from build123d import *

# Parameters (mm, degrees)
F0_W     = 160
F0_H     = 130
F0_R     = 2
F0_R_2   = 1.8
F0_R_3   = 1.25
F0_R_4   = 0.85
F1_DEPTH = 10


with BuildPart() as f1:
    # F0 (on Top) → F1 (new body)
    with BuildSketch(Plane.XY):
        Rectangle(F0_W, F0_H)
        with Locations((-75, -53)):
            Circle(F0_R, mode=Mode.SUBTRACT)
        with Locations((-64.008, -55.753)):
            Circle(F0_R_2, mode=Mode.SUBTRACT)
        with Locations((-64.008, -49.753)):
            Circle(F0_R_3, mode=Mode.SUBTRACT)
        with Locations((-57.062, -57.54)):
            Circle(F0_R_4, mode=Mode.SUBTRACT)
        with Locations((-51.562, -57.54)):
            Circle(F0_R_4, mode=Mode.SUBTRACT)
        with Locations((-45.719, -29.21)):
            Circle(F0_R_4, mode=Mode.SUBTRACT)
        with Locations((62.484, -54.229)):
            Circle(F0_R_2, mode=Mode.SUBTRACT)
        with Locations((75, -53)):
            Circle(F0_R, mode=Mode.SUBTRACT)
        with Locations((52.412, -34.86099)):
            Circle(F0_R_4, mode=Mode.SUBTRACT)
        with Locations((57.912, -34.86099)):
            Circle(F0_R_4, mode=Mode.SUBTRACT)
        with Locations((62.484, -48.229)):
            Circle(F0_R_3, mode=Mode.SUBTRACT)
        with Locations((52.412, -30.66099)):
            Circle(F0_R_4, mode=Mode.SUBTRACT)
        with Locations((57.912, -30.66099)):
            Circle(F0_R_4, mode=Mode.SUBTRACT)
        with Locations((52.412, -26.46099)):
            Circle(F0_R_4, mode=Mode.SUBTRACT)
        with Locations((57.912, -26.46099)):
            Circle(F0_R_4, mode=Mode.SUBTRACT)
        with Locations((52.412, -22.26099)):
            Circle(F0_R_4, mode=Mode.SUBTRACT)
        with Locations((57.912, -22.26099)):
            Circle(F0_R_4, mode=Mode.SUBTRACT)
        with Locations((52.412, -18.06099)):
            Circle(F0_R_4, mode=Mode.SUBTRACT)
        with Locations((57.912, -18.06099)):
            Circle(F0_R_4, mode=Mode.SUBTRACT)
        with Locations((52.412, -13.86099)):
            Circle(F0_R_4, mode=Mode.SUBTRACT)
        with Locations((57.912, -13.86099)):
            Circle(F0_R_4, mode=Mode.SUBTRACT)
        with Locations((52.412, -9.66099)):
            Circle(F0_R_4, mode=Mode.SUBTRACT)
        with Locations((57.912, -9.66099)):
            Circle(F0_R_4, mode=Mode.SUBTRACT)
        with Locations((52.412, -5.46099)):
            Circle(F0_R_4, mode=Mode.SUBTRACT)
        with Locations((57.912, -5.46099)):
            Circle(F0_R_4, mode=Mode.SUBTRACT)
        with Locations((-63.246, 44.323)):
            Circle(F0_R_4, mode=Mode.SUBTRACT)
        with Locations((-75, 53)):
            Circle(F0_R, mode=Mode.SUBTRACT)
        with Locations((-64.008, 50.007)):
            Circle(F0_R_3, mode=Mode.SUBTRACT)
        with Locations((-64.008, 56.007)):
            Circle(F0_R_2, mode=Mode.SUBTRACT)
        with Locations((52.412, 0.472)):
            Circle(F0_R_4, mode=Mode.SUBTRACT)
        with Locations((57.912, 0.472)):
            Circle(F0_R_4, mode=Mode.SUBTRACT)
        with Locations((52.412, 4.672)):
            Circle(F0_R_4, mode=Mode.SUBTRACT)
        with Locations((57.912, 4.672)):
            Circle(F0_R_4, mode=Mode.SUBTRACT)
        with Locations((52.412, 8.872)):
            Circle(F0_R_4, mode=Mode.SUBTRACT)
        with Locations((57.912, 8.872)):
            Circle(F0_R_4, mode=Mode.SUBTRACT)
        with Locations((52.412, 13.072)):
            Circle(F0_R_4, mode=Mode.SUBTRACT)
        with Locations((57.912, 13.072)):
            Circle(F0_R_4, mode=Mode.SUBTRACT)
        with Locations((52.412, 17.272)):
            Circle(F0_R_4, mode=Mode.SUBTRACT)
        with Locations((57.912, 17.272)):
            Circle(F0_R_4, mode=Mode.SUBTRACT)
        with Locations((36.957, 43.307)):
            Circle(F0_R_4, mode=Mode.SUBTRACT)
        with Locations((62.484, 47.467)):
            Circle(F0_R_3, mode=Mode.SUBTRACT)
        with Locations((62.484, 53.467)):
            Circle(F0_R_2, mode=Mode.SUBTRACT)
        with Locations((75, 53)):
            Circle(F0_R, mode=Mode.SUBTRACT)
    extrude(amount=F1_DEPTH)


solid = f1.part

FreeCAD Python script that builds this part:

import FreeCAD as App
import Part
import Sketcher
from FreeCAD import Vector


def add_polygon(sketch, points):
    """Adds a closed chain of lines whose ends are joined by coincident constraints."""
    first, n = sketch.GeometryCount, len(points)
    for a, b in zip(points, points[1:] + points[:1]):
        sketch.addGeometry(Part.LineSegment(App.Vector(*a, 0), App.Vector(*b, 0)), False)
    for i in range(n):
        sketch.addConstraint(Sketcher.Constraint("Coincident", first + i, 2, first + (i + 1) % n, 1))

doc = App.newDocument("Part")
body = doc.addObject("PartDesign::Body", "Body")

sketch1 = body.newObject("Sketcher::SketchObject", "Sketch")
sketch1.AttachmentSupport = (doc.getObject("XY_Plane"), [""])
sketch1.MapMode = "FlatFace"
add_polygon(sketch1, [(-80, 65), (-80, -65), (80, -65), (80, 65)])
sketch1.addGeometry(Part.Circle(Vector(-75, -53, 0), Vector(0, 0, 1), 2), False)
sketch1.addGeometry(Part.Circle(Vector(-64, -55.8, 0), Vector(0, 0, 1), 1.8), False)
sketch1.addGeometry(Part.Circle(Vector(-64, -49.8, 0), Vector(0, 0, 1), 1.2), False)
sketch1.addGeometry(Part.Circle(Vector(-57.1, -57.5, 0), Vector(0, 0, 1), 0.8), False)
sketch1.addGeometry(Part.Circle(Vector(-51.6, -57.5, 0), Vector(0, 0, 1), 0.8), False)
sketch1.addGeometry(Part.Circle(Vector(-45.7, -29.2, 0), Vector(0, 0, 1), 0.8), False)
sketch1.addGeometry(Part.Circle(Vector(62.5, -54.2, 0), Vector(0, 0, 1), 1.8), False)
sketch1.addGeometry(Part.Circle(Vector(75, -53, 0), Vector(0, 0, 1), 2), False)
sketch1.addGeometry(Part.Circle(Vector(62.5, -48.2, 0), Vector(0, 0, 1), 1.2), False)
sketch1.addGeometry(Part.Circle(Vector(52.4, -34.9, 0), Vector(0, 0, 1), 0.8), False)
sketch1.addGeometry(Part.Circle(Vector(52.4, -30.7, 0), Vector(0, 0, 1), 0.8), False)
sketch1.addGeometry(Part.Circle(Vector(57.9, -34.9, 0), Vector(0, 0, 1), 0.8), False)
sketch1.addGeometry(Part.Circle(Vector(57.9, -30.7, 0), Vector(0, 0, 1), 0.8), False)
sketch1.addGeometry(Part.Circle(Vector(52.4, -26.5, 0), Vector(0, 0, 1), 0.8), False)
sketch1.addGeometry(Part.Circle(Vector(52.4, -22.3, 0), Vector(0, 0, 1), 0.8), False)
sketch1.addGeometry(Part.Circle(Vector(52.4, -18.1, 0), Vector(0, 0, 1), 0.8), False)
sketch1.addGeometry(Part.Circle(Vector(57.9, -26.5, 0), Vector(0, 0, 1), 0.8), False)
sketch1.addGeometry(Part.Circle(Vector(57.9, -22.3, 0), Vector(0, 0, 1), 0.8), False)
sketch1.addGeometry(Part.Circle(Vector(57.9, -18.1, 0), Vector(0, 0, 1), 0.8), False)
sketch1.addGeometry(Part.Circle(Vector(52.4, -13.9, 0), Vector(0, 0, 1), 0.8), False)
sketch1.addGeometry(Part.Circle(Vector(52.4, -9.7, 0), Vector(0, 0, 1), 0.8), False)
sketch1.addGeometry(Part.Circle(Vector(52.4, -5.5, 0), Vector(0, 0, 1), 0.8), False)
sketch1.addGeometry(Part.Circle(Vector(57.9, -13.9, 0), Vector(0, 0, 1), 0.8), False)
sketch1.addGeometry(Part.Circle(Vector(57.9, -9.7, 0), Vector(0, 0, 1), 0.8), False)
sketch1.addGeometry(Part.Circle(Vector(57.9, -5.5, 0), Vector(0, 0, 1), 0.8), False)
sketch1.addGeometry(Part.Circle(Vector(-63.2, 44.3, 0), Vector(0, 0, 1), 0.8), False)
sketch1.addGeometry(Part.Circle(Vector(-64, 50, 0), Vector(0, 0, 1), 1.2), False)
sketch1.addGeometry(Part.Circle(Vector(-75, 53, 0), Vector(0, 0, 1), 2), False)
sketch1.addGeometry(Part.Circle(Vector(-64, 56, 0), Vector(0, 0, 1), 1.8), False)
sketch1.addGeometry(Part.Circle(Vector(52.4, 0.5, 0), Vector(0, 0, 1), 0.8), False)
sketch1.addGeometry(Part.Circle(Vector(52.4, 4.7, 0), Vector(0, 0, 1), 0.8), False)
sketch1.addGeometry(Part.Circle(Vector(52.4, 8.9, 0), Vector(0, 0, 1), 0.8), False)
sketch1.addGeometry(Part.Circle(Vector(52.4, 13.1, 0), Vector(0, 0, 1), 0.8), False)
sketch1.addGeometry(Part.Circle(Vector(57.9, 0.5, 0), Vector(0, 0, 1), 0.8), False)
sketch1.addGeometry(Part.Circle(Vector(57.9, 4.7, 0), Vector(0, 0, 1), 0.8), False)
sketch1.addGeometry(Part.Circle(Vector(57.9, 8.9, 0), Vector(0, 0, 1), 0.8), False)
sketch1.addGeometry(Part.Circle(Vector(57.9, 13.1, 0), Vector(0, 0, 1), 0.8), False)
sketch1.addGeometry(Part.Circle(Vector(52.4, 17.3, 0), Vector(0, 0, 1), 0.8), False)
sketch1.addGeometry(Part.Circle(Vector(57.9, 17.3, 0), Vector(0, 0, 1), 0.8), False)
sketch1.addGeometry(Part.Circle(Vector(37, 43.3, 0), Vector(0, 0, 1), 0.8), False)
sketch1.addGeometry(Part.Circle(Vector(62.5, 47.5, 0), Vector(0, 0, 1), 1.2), False)
sketch1.addGeometry(Part.Circle(Vector(62.5, 53.5, 0), Vector(0, 0, 1), 1.8), False)
sketch1.addGeometry(Part.Circle(Vector(75, 53, 0), Vector(0, 0, 1), 2), False)
sketch1.addConstraint(Sketcher.Constraint("Vertical", 0))
sketch1.addConstraint(Sketcher.Constraint("Horizontal", 1))
sketch1.addConstraint(Sketcher.Constraint("Vertical", 2))
sketch1.addConstraint(Sketcher.Constraint("Horizontal", 3))
sketch1.addConstraint(Sketcher.Constraint("Equal", 7, 8))
sketch1.addConstraint(Sketcher.Constraint("Equal", 8, 9))
sketch1.addConstraint(Sketcher.Constraint("Equal", 5, 10))
sketch1.addConstraint(Sketcher.Constraint("Equal", 4, 11))
sketch1.addConstraint(Sketcher.Constraint("Equal", 6, 12))
sketch1.addConstraint(Sketcher.Constraint("Equal", 9, 13))
sketch1.addConstraint(Sketcher.Constraint("Equal", 13, 14))
sketch1.addConstraint(Sketcher.Constraint("Equal", 14, 15))
sketch1.addConstraint(Sketcher.Constraint("Equal", 15, 16))
sketch1.addConstraint(Sketcher.Constraint("Equal", 16, 17))
sketch1.addConstraint(Sketcher.Constraint("Equal", 17, 18))
sketch1.addConstraint(Sketcher.Constraint("Equal", 18, 19))
sketch1.addConstraint(Sketcher.Constraint("Equal", 19, 20))
sketch1.addConstraint(Sketcher.Constraint("Equal", 20, 21))
sketch1.addConstraint(Sketcher.Constraint("Equal", 21, 22))
sketch1.addConstraint(Sketcher.Constraint("Equal", 22, 23))
sketch1.addConstraint(Sketcher.Constraint("Equal", 23, 24))
sketch1.addConstraint(Sketcher.Constraint("Equal", 24, 25))
sketch1.addConstraint(Sketcher.Constraint("Equal", 25, 26))
sketch1.addConstraint(Sketcher.Constraint("Equal", 26, 27))
sketch1.addConstraint(Sketcher.Constraint("Equal", 27, 28))
sketch1.addConstraint(Sketcher.Constraint("Equal", 28, 29))
sketch1.addConstraint(Sketcher.Constraint("Equal", 12, 30))
sketch1.addConstraint(Sketcher.Constraint("Equal", 11, 31))
sketch1.addConstraint(Sketcher.Constraint("Equal", 10, 32))
sketch1.addConstraint(Sketcher.Constraint("Equal", 29, 33))
sketch1.addConstraint(Sketcher.Constraint("Equal", 33, 34))
sketch1.addConstraint(Sketcher.Constraint("Equal", 34, 35))
sketch1.addConstraint(Sketcher.Constraint("Equal", 35, 36))
sketch1.addConstraint(Sketcher.Constraint("Equal", 36, 37))
sketch1.addConstraint(Sketcher.Constraint("Equal", 37, 38))
sketch1.addConstraint(Sketcher.Constraint("Equal", 38, 39))
sketch1.addConstraint(Sketcher.Constraint("Equal", 39, 40))
sketch1.addConstraint(Sketcher.Constraint("Equal", 40, 41))
sketch1.addConstraint(Sketcher.Constraint("Equal", 41, 42))
sketch1.addConstraint(Sketcher.Constraint("Equal", 42, 43))
sketch1.addConstraint(Sketcher.Constraint("Equal", 30, 44))
sketch1.addConstraint(Sketcher.Constraint("Equal", 32, 45))
sketch1.addConstraint(Sketcher.Constraint("Equal", 31, 46))
sketch1.addConstraint(Sketcher.Constraint("Symmetric", 11, 3, 31, 3, -1, 1))
sketch1.addConstraint(Sketcher.Constraint("Symmetric", 4, 3, 46, 3, -1, 1))
sketch1.addConstraint(Sketcher.Constraint("Symmetric", 0, 2, 2, 2, -1, 1))
sketch1.addConstraint(Sketcher.Constraint("Symmetric", 4, 3, 11, 3, -2))
sketch1.addConstraint(Sketcher.Constraint("Horizontal", 7, 3, 8, 3))
sketch1.addConstraint(Sketcher.Constraint("Horizontal", 13, 3, 15, 3))
sketch1.addConstraint(Sketcher.Constraint("Horizontal", 14, 3, 16, 3))
sketch1.addConstraint(Sketcher.Constraint("Horizontal", 17, 3, 20, 3))
sketch1.addConstraint(Sketcher.Constraint("Horizontal", 18, 3, 21, 3))
sketch1.addConstraint(Sketcher.Constraint("Horizontal", 19, 3, 22, 3))
sketch1.addConstraint(Sketcher.Constraint("Horizontal", 23, 3, 26, 3))
sketch1.addConstraint(Sketcher.Constraint("Horizontal", 24, 3, 27, 3))
sketch1.addConstraint(Sketcher.Constraint("Horizontal", 25, 3, 28, 3))
sketch1.addConstraint(Sketcher.Constraint("Horizontal", 33, 3, 37, 3))
sketch1.addConstraint(Sketcher.Constraint("Horizontal", 34, 3, 38, 3))
sketch1.addConstraint(Sketcher.Constraint("Horizontal", 35, 3, 39, 3))
sketch1.addConstraint(Sketcher.Constraint("Horizontal", 36, 3, 40, 3))
sketch1.addConstraint(Sketcher.Constraint("Horizontal", 41, 3, 42, 3))
sketch1.addConstraint(Sketcher.Constraint("Vertical", 5, 3, 6, 3))
sketch1.addConstraint(Sketcher.Constraint("Vertical", 10, 3, 12, 3))
sketch1.addConstraint(Sketcher.Constraint("Vertical", 13, 3, 14, 3))
sketch1.addConstraint(Sketcher.Constraint("Vertical", 15, 3, 16, 3))
sketch1.addConstraint(Sketcher.Constraint("Vertical", 14, 3, 17, 3))
sketch1.addConstraint(Sketcher.Constraint("Vertical", 17, 3, 18, 3))
sketch1.addConstraint(Sketcher.Constraint("Vertical", 18, 3, 19, 3))
sketch1.addConstraint(Sketcher.Constraint("Vertical", 16, 3, 20, 3))
sketch1.addConstraint(Sketcher.Constraint("Vertical", 20, 3, 21, 3))
sketch1.addConstraint(Sketcher.Constraint("Vertical", 21, 3, 22, 3))
sketch1.addConstraint(Sketcher.Constraint("Vertical", 19, 3, 23, 3))
sketch1.addConstraint(Sketcher.Constraint("Vertical", 23, 3, 24, 3))
sketch1.addConstraint(Sketcher.Constraint("Vertical", 24, 3, 25, 3))
sketch1.addConstraint(Sketcher.Constraint("Vertical", 22, 3, 26, 3))
sketch1.addConstraint(Sketcher.Constraint("Vertical", 26, 3, 27, 3))
sketch1.addConstraint(Sketcher.Constraint("Vertical", 27, 3, 28, 3))
sketch1.addConstraint(Sketcher.Constraint("Vertical", 6, 3, 30, 3))
sketch1.addConstraint(Sketcher.Constraint("Vertical", 30, 3, 32, 3))
sketch1.addConstraint(Sketcher.Constraint("Vertical", 25, 3, 33, 3))
sketch1.addConstraint(Sketcher.Constraint("Vertical", 33, 3, 34, 3))
sketch1.addConstraint(Sketcher.Constraint("Vertical", 34, 3, 35, 3))
sketch1.addConstraint(Sketcher.Constraint("Vertical", 35, 3, 36, 3))
sketch1.addConstraint(Sketcher.Constraint("Vertical", 28, 3, 37, 3))
sketch1.addConstraint(Sketcher.Constraint("Vertical", 37, 3, 38, 3))
sketch1.addConstraint(Sketcher.Constraint("Vertical", 38, 3, 39, 3))
sketch1.addConstraint(Sketcher.Constraint("Vertical", 39, 3, 40, 3))
sketch1.addConstraint(Sketcher.Constraint("Vertical", 36, 3, 41, 3))
sketch1.addConstraint(Sketcher.Constraint("Vertical", 40, 3, 42, 3))
sketch1.addConstraint(Sketcher.Constraint("Vertical", 12, 3, 44, 3))
sketch1.addConstraint(Sketcher.Constraint("Vertical", 44, 3, 45, 3))
sketch1.addConstraint(Sketcher.Constraint("Diameter", 4, 4.0))
sketch1.addConstraint(Sketcher.Constraint("Diameter", 5, 3.6))
sketch1.addConstraint(Sketcher.Constraint("Diameter", 6, 2.5))
sketch1.addConstraint(Sketcher.Constraint("Diameter", 7, 1.7))
sketch1.addConstraint(Sketcher.Constraint("DistanceX", 1, 1, 1, 2, 160.0))
sketch1.addConstraint(Sketcher.Constraint("DistanceY", 0, 2, 0, 1, 130.0))
sketch1.addConstraint(Sketcher.Constraint("DistanceX", 4, 3, -1, 1, 75.0))
sketch1.addConstraint(Sketcher.Constraint("DistanceY", 4, 3, -1, 1, 53.0))
sketch1.addConstraint(Sketcher.Constraint("DistanceY", 5, 3, 6, 3, 6.0))
sketch1.addConstraint(Sketcher.Constraint("DistanceY", 10, 3, 12, 3, 6.0))
sketch1.addConstraint(Sketcher.Constraint("DistanceY", 30, 3, 32, 3, 6.0))
sketch1.addConstraint(Sketcher.Constraint("DistanceY", 44, 3, 45, 3, 6.0))
sketch1.addConstraint(Sketcher.Constraint("DistanceX", 7, 3, 8, 3, 5.5))
sketch1.addConstraint(Sketcher.Constraint("DistanceY", 13, 3, 14, 3, 4.2))
sketch1.addConstraint(Sketcher.Constraint("DistanceX", 13, 3, 15, 3, 5.5))
sketch1.addConstraint(Sketcher.Constraint("DistanceY", 14, 3, 17, 3, 4.2))
sketch1.addConstraint(Sketcher.Constraint("DistanceY", 17, 3, 18, 3, 4.2))
sketch1.addConstraint(Sketcher.Constraint("DistanceY", 18, 3, 19, 3, 4.2))
sketch1.addConstraint(Sketcher.Constraint("DistanceY", 19, 3, 23, 3, 4.2))
sketch1.addConstraint(Sketcher.Constraint("DistanceY", 23, 3, 24, 3, 4.2))
sketch1.addConstraint(Sketcher.Constraint("DistanceY", 24, 3, 25, 3, 4.2))
sketch1.addConstraint(Sketcher.Constraint("DistanceY", 33, 3, 34, 3, 4.2))
sketch1.addConstraint(Sketcher.Constraint("DistanceY", 34, 3, 35, 3, 4.2))
sketch1.addConstraint(Sketcher.Constraint("DistanceY", 35, 3, 36, 3, 4.2))
sketch1.addConstraint(Sketcher.Constraint("DistanceY", 36, 3, 41, 3, 4.2))
sketch1.addConstraint(Sketcher.Constraint("DistanceY", 7, 3, -1, 1, 57.54))
sketch1.addConstraint(Sketcher.Constraint("DistanceY", 9, 3, -1, 1, 29.21))
sketch1.addConstraint(Sketcher.Constraint("DistanceY", 6, 3, 30, 3, 99.76))
sketch1.addConstraint(Sketcher.Constraint("DistanceY", 43, 3, 44, 3, 4.16))
sketch1.addConstraint(Sketcher.Constraint("DistanceX", 5, 3, -1, 1, 64.008))
sketch1.addConstraint(Sketcher.Constraint("DistanceY", 5, 3, -1, 1, 55.753))
sketch1.addConstraint(Sketcher.Constraint("DistanceX", 7, 3, -1, 1, 57.062))
sketch1.addConstraint(Sketcher.Constraint("DistanceX", 9, 3, -1, 1, 45.719))
sketch1.addConstraint(Sketcher.Constraint("DistanceX", -1, 1, 10, 3, 62.484))
sketch1.addConstraint(Sketcher.Constraint("DistanceY", 10, 3, -1, 1, 54.229))
sketch1.addConstraint(Sketcher.Constraint("DistanceX", -1, 1, 13, 3, 52.412))
sketch1.addConstraint(Sketcher.Constraint("DistanceX", 29, 3, -1, 1, 63.246))
sketch1.addConstraint(Sketcher.Constraint("DistanceY", -1, 1, 29, 3, 44.323))
sketch1.addConstraint(Sketcher.Constraint("DistanceY", -1, 1, 33, 3, 0.472))
sketch1.addConstraint(Sketcher.Constraint("DistanceX", -1, 1, 43, 3, 36.957))
sketch1.addConstraint(Sketcher.Constraint("DistanceY", -1, 1, 43, 3, 43.307))
sketch1.addConstraint(Sketcher.Constraint("DistanceY", 13, 3, -1, 1, 34.86099))
pad1 = body.newObject("PartDesign::Pad", "Pad")
pad1.Profile = sketch1
pad1.Length = 10

doc.recompute()
